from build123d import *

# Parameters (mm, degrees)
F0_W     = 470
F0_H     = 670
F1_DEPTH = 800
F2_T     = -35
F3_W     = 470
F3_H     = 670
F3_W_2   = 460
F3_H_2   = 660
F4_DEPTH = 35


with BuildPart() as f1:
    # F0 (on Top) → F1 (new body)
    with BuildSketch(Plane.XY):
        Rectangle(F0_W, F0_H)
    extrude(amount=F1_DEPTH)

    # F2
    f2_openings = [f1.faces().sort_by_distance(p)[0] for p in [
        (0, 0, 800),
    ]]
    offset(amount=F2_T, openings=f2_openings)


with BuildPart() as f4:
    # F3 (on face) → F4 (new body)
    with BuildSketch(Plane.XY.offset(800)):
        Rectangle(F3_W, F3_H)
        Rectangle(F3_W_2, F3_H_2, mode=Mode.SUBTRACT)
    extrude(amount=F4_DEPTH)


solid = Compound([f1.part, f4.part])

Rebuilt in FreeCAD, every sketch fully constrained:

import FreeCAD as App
import Part
import Sketcher
Q = App.Units.Quantity


def faces_at(feature, points):
    """Names of the faces that lie closest to the given points."""
    faces = feature.Shape.Faces
    near = lambda p: min(range(len(faces)), key=lambda i: faces[i].distToShape(Part.Vertex(*p))[0])
    return sorted({f"Face{near(p) + 1}" for p in points})


def add_polygon(sketch, points):
    """Adds a closed chain of lines whose ends are joined by coincident constraints."""
    first, n = sketch.GeometryCount, len(points)
    for a, b in zip(points, points[1:] + points[:1]):
        sketch.addGeometry(Part.LineSegment(App.Vector(*a, 0), App.Vector(*b, 0)), False)
    for i in range(n):
        sketch.addConstraint(Sketcher.Constraint("Coincident", first + i, 2, first + (i + 1) % n, 1))

doc = App.newDocument("Part")
params = doc.addObject("Spreadsheet::Sheet", "Params")
for row, (alias, value) in enumerate([
    ("sketch1_width", "470 mm"),
    ("sketch1_height", "670 mm"),
    ("pad1_length", "800 mm"),
    ("thickness_wall", "35 mm"),
    ("sketch2_width", "470 mm"),
    ("sketch2_width2", "460 mm"),
    ("sketch2_height", "670 mm"),
    ("sketch2_height2", "660 mm"),
    ("pad2_length", "35 mm"),
], start=1):
    params.set(f"A{row}", alias)
    params.set(f"B{row}", "=" + value)
    params.setAlias(f"B{row}", alias)

body = doc.addObject("PartDesign::Body", "Body")

sketch1 = doc.addObject("Sketcher::SketchObject", "Sketch")
body.addObject(sketch1)
sketch1.AttachmentSupport = (doc.XY_Plane, [""])
sketch1.MapMode = "FlatFace"
add_polygon(sketch1, [(-235, 335), (-235, -335), (235, -335), (235, 335)])
sketch1.addConstraint([
    Sketcher.Constraint("Vertical", 0),
    Sketcher.Constraint("Horizontal", 1),
    Sketcher.Constraint("Vertical", 2),
    Sketcher.Constraint("Horizontal", 3),
    Sketcher.Constraint("Symmetric", 0, 2, 2, 2, -1, 1),
    Sketcher.Constraint("DistanceX", 1, 1, 1, 2, Q("470 mm")),
    Sketcher.Constraint("DistanceY", 0, 2, 0, 1, Q("670 mm")),
])
sketch1.setExpression("Constraints[9]", "Params.sketch1_width")
sketch1.setExpression("Constraints[10]", "Params.sketch1_height")
pad1 = doc.addObject("PartDesign::Pad", "Pad")
body.addObject(pad1)
pad1.Profile = sketch1
pad1.setExpression("Length", "Params.pad1_length")
doc.recompute()

thickness = doc.addObject("PartDesign::Thickness", "Thickness")
body.addObject(thickness)
thickness.Base = (pad1, faces_at(pad1, [(0, 0, 800)]))
thickness.setExpression("Value", "Params.thickness_wall")
thickness.Reversed = True
thickness.Join = "Arc"
body2 = doc.addObject("PartDesign::Body", "Body001")

sketch2 = doc.addObject("Sketcher::SketchObject", "Sketch001")
body2.addObject(sketch2)
sketch2.AttachmentSupport = (doc.getObject("XY_Plane001"), [""])
sketch2.MapMode = "FlatFace"
sketch2.AttachmentOffset = App.Placement(App.Vector(0, 0, 800), App.Rotation())
add_polygon(sketch2, [(-235, 335), (-235, -335), (235, -335), (235, 335)])
add_polygon(sketch2, [(230, -330), (-230, -330), (-230, 330), (230, 330)])
sketch2.addConstraint([
    Sketcher.Constraint("Vertical", 0),
    Sketcher.Constraint("Horizontal", 1),
    Sketcher.Constraint("Vertical", 2),
    Sketcher.Constraint("Horizontal", 3),
    Sketcher.Constraint("Horizontal", 4),
    Sketcher.Constraint("Vertical", 5),
    Sketcher.Constraint("Horizontal", 6),
    Sketcher.Constraint("Vertical", 7),
    Sketcher.Constraint("Symmetric", 0, 2, 2, 2, -1, 1),
    Sketcher.Constraint("Symmetric", 4, 2, 6, 2, -1, 1),
    Sketcher.Constraint("DistanceX", 1, 1, 1, 2, Q("470 mm")),
    Sketcher.Constraint("DistanceX", 4, 2, 4, 1, Q("460 mm")),
    Sketcher.Constraint("DistanceY", 0, 2, 0, 1, Q("670 mm")),
    Sketcher.Constraint("DistanceY", 5, 1, 5, 2, Q("660 mm")),
])
sketch2.setExpression("Constraints[18]", "Params.sketch2_width")
sketch2.setExpression("Constraints[19]", "Params.sketch2_width2")
sketch2.setExpression("Constraints[20]", "Params.sketch2_height")
sketch2.setExpression("Constraints[21]", "Params.sketch2_height2")
pad2 = doc.addObject("PartDesign::Pad", "Pad001")
body2.addObject(pad2)
pad2.Profile = sketch2
pad2.setExpression("Length", "Params.pad2_length")

doc.recompute()
